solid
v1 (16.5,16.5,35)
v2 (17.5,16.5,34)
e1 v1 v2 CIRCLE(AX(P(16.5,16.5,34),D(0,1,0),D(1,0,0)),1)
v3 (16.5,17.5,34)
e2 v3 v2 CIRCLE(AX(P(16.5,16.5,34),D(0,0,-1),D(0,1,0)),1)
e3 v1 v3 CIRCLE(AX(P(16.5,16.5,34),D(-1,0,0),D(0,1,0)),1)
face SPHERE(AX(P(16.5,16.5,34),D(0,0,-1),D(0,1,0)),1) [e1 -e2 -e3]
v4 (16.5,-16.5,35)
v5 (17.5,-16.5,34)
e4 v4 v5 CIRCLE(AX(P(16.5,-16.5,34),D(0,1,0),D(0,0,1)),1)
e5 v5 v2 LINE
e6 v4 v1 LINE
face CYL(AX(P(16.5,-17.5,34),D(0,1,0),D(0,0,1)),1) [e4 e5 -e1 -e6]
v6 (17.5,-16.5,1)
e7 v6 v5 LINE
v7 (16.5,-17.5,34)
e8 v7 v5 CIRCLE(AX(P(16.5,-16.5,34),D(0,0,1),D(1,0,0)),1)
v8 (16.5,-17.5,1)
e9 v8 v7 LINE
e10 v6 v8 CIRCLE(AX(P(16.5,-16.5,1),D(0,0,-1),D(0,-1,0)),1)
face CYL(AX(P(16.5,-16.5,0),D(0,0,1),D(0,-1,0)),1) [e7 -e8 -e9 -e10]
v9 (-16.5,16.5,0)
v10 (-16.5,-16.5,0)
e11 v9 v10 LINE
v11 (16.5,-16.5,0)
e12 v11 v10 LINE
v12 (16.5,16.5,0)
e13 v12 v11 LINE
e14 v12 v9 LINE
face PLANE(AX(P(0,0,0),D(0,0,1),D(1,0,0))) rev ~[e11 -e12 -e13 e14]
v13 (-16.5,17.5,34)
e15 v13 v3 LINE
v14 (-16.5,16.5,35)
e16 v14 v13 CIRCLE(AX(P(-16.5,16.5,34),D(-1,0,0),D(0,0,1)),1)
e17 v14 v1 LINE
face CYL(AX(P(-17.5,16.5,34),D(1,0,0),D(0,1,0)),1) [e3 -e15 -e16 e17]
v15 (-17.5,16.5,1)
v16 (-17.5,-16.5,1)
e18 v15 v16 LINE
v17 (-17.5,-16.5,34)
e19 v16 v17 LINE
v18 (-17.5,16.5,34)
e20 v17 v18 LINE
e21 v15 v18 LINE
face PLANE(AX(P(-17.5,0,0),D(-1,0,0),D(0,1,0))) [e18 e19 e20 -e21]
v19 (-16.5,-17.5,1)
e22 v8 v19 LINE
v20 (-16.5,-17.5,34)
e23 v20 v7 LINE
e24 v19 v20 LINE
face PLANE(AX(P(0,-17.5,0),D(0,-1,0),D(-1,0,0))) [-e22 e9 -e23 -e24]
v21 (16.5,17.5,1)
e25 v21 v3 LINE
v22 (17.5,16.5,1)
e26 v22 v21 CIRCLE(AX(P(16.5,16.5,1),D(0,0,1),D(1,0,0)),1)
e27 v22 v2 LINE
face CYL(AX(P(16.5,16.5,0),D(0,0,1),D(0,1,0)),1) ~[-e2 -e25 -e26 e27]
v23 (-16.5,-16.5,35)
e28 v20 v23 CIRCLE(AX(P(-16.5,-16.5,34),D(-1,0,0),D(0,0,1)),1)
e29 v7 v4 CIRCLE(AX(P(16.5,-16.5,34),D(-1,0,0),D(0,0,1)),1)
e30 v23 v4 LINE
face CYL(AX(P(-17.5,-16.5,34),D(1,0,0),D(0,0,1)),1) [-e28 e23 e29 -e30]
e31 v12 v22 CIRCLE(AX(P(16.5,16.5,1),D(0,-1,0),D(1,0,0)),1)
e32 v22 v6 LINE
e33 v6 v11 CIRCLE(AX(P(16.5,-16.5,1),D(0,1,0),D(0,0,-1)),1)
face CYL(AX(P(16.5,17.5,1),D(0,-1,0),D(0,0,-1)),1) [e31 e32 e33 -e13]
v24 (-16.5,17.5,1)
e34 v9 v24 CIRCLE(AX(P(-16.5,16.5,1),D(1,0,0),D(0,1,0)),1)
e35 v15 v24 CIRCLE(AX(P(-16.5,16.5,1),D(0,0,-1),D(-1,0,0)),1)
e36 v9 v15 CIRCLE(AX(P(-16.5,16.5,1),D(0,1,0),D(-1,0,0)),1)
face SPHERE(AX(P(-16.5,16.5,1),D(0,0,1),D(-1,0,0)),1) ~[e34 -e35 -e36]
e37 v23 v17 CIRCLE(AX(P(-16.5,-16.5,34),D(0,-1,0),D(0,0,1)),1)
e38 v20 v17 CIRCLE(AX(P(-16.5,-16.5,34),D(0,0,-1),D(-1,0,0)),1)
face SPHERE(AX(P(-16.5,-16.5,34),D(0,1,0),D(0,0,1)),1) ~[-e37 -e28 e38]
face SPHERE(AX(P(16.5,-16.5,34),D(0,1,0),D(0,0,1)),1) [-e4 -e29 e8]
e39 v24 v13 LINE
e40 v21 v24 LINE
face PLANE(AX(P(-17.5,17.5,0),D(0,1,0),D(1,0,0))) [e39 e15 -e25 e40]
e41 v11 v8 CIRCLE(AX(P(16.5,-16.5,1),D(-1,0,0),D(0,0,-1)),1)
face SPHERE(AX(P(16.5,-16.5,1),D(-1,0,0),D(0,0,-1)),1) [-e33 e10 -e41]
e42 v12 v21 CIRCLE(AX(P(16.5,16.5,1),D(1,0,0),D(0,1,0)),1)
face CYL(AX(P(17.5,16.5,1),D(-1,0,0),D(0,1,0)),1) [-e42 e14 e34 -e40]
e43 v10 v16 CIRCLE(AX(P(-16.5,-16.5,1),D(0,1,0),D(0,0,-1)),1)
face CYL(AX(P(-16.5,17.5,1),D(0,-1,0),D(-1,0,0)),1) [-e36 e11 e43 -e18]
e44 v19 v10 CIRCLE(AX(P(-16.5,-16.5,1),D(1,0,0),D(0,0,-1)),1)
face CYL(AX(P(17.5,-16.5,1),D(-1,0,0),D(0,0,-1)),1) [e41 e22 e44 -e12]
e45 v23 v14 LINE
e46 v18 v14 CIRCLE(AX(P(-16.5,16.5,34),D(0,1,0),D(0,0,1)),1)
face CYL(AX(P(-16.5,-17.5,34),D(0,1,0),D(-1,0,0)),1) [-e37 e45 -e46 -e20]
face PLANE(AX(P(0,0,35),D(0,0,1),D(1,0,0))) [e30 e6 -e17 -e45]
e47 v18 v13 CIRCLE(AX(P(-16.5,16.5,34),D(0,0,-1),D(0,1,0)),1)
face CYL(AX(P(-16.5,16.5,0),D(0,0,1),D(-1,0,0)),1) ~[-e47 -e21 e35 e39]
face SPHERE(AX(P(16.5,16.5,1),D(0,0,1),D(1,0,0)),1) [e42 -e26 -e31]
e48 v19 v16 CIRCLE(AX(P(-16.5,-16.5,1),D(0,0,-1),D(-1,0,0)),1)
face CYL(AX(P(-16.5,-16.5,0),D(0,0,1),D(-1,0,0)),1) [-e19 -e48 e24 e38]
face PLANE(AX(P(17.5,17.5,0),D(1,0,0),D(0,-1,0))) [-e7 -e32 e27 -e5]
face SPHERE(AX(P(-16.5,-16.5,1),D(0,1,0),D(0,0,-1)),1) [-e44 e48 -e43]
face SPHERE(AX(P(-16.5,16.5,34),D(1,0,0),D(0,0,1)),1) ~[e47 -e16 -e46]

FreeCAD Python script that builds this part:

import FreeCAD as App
import Part
import Sketcher
from FreeCAD import Vector
Q = App.Units.Quantity

doc = App.newDocument("Part")
body = doc.addObject("PartDesign::Body", "Body")

# Sketch on XY plane
sketch1 = body.newObject("Sketcher::SketchObject", "Sketch")
sketch1.AttachmentSupport = (doc.getObject("XY_Plane"), [""])
sketch1.MapMode = "FlatFace"
sketch1.addGeometry(Part.LineSegment(Vector(-17.5, 17.5, 0), Vector(-17.5, -17.5, 0)), False)
sketch1.addGeometry(Part.LineSegment(Vector(-17.5, -17.5, 0), Vector(17.5, -17.5, 0)), False)
sketch1.addGeometry(Part.LineSegment(Vector(17.5, -17.5, 0), Vector(17.5, 17.5, 0)), False)
sketch1.addGeometry(Part.LineSegment(Vector(17.5, 17.5, 0), Vector(-17.5, 17.5, 0)), False)
sketch1.addConstraint(Sketcher.Constraint("Coincident", 0, 2, 1, 1))
sketch1.addConstraint(Sketcher.Constraint("Coincident", 1, 2, 2, 1))
sketch1.addConstraint(Sketcher.Constraint("Coincident", 2, 2, 3, 1))
sketch1.addConstraint(Sketcher.Constraint("Coincident", 3, 2, 0, 1))
sketch1.addConstraint(Sketcher.Constraint("Vertical", 0))
sketch1.addConstraint(Sketcher.Constraint("Horizontal", 1))
sketch1.addConstraint(Sketcher.Constraint("Vertical", 2))
sketch1.addConstraint(Sketcher.Constraint("Horizontal", 3))
sketch1.addConstraint(Sketcher.Constraint("Symmetric", 0, 2, 2, 2, -1, 1))
sketch1.addConstraint(Sketcher.Constraint("Equal", 3, 0))
sketch1.addConstraint(Sketcher.Constraint("DistanceX", 1, 1, 1, 2, Q("35 mm")))
pad1 = body.newObject("PartDesign::Pad", "Pad")
pad1.Profile = sketch1
pad1.Length = 35
doc.recompute()

fillet = body.newObject("PartDesign::Fillet", "Fillet")
fillet.Base = (pad1, ["Edge1"])
fillet.UseAllEdges = True
fillet.Radius = 1

doc.recompute()
